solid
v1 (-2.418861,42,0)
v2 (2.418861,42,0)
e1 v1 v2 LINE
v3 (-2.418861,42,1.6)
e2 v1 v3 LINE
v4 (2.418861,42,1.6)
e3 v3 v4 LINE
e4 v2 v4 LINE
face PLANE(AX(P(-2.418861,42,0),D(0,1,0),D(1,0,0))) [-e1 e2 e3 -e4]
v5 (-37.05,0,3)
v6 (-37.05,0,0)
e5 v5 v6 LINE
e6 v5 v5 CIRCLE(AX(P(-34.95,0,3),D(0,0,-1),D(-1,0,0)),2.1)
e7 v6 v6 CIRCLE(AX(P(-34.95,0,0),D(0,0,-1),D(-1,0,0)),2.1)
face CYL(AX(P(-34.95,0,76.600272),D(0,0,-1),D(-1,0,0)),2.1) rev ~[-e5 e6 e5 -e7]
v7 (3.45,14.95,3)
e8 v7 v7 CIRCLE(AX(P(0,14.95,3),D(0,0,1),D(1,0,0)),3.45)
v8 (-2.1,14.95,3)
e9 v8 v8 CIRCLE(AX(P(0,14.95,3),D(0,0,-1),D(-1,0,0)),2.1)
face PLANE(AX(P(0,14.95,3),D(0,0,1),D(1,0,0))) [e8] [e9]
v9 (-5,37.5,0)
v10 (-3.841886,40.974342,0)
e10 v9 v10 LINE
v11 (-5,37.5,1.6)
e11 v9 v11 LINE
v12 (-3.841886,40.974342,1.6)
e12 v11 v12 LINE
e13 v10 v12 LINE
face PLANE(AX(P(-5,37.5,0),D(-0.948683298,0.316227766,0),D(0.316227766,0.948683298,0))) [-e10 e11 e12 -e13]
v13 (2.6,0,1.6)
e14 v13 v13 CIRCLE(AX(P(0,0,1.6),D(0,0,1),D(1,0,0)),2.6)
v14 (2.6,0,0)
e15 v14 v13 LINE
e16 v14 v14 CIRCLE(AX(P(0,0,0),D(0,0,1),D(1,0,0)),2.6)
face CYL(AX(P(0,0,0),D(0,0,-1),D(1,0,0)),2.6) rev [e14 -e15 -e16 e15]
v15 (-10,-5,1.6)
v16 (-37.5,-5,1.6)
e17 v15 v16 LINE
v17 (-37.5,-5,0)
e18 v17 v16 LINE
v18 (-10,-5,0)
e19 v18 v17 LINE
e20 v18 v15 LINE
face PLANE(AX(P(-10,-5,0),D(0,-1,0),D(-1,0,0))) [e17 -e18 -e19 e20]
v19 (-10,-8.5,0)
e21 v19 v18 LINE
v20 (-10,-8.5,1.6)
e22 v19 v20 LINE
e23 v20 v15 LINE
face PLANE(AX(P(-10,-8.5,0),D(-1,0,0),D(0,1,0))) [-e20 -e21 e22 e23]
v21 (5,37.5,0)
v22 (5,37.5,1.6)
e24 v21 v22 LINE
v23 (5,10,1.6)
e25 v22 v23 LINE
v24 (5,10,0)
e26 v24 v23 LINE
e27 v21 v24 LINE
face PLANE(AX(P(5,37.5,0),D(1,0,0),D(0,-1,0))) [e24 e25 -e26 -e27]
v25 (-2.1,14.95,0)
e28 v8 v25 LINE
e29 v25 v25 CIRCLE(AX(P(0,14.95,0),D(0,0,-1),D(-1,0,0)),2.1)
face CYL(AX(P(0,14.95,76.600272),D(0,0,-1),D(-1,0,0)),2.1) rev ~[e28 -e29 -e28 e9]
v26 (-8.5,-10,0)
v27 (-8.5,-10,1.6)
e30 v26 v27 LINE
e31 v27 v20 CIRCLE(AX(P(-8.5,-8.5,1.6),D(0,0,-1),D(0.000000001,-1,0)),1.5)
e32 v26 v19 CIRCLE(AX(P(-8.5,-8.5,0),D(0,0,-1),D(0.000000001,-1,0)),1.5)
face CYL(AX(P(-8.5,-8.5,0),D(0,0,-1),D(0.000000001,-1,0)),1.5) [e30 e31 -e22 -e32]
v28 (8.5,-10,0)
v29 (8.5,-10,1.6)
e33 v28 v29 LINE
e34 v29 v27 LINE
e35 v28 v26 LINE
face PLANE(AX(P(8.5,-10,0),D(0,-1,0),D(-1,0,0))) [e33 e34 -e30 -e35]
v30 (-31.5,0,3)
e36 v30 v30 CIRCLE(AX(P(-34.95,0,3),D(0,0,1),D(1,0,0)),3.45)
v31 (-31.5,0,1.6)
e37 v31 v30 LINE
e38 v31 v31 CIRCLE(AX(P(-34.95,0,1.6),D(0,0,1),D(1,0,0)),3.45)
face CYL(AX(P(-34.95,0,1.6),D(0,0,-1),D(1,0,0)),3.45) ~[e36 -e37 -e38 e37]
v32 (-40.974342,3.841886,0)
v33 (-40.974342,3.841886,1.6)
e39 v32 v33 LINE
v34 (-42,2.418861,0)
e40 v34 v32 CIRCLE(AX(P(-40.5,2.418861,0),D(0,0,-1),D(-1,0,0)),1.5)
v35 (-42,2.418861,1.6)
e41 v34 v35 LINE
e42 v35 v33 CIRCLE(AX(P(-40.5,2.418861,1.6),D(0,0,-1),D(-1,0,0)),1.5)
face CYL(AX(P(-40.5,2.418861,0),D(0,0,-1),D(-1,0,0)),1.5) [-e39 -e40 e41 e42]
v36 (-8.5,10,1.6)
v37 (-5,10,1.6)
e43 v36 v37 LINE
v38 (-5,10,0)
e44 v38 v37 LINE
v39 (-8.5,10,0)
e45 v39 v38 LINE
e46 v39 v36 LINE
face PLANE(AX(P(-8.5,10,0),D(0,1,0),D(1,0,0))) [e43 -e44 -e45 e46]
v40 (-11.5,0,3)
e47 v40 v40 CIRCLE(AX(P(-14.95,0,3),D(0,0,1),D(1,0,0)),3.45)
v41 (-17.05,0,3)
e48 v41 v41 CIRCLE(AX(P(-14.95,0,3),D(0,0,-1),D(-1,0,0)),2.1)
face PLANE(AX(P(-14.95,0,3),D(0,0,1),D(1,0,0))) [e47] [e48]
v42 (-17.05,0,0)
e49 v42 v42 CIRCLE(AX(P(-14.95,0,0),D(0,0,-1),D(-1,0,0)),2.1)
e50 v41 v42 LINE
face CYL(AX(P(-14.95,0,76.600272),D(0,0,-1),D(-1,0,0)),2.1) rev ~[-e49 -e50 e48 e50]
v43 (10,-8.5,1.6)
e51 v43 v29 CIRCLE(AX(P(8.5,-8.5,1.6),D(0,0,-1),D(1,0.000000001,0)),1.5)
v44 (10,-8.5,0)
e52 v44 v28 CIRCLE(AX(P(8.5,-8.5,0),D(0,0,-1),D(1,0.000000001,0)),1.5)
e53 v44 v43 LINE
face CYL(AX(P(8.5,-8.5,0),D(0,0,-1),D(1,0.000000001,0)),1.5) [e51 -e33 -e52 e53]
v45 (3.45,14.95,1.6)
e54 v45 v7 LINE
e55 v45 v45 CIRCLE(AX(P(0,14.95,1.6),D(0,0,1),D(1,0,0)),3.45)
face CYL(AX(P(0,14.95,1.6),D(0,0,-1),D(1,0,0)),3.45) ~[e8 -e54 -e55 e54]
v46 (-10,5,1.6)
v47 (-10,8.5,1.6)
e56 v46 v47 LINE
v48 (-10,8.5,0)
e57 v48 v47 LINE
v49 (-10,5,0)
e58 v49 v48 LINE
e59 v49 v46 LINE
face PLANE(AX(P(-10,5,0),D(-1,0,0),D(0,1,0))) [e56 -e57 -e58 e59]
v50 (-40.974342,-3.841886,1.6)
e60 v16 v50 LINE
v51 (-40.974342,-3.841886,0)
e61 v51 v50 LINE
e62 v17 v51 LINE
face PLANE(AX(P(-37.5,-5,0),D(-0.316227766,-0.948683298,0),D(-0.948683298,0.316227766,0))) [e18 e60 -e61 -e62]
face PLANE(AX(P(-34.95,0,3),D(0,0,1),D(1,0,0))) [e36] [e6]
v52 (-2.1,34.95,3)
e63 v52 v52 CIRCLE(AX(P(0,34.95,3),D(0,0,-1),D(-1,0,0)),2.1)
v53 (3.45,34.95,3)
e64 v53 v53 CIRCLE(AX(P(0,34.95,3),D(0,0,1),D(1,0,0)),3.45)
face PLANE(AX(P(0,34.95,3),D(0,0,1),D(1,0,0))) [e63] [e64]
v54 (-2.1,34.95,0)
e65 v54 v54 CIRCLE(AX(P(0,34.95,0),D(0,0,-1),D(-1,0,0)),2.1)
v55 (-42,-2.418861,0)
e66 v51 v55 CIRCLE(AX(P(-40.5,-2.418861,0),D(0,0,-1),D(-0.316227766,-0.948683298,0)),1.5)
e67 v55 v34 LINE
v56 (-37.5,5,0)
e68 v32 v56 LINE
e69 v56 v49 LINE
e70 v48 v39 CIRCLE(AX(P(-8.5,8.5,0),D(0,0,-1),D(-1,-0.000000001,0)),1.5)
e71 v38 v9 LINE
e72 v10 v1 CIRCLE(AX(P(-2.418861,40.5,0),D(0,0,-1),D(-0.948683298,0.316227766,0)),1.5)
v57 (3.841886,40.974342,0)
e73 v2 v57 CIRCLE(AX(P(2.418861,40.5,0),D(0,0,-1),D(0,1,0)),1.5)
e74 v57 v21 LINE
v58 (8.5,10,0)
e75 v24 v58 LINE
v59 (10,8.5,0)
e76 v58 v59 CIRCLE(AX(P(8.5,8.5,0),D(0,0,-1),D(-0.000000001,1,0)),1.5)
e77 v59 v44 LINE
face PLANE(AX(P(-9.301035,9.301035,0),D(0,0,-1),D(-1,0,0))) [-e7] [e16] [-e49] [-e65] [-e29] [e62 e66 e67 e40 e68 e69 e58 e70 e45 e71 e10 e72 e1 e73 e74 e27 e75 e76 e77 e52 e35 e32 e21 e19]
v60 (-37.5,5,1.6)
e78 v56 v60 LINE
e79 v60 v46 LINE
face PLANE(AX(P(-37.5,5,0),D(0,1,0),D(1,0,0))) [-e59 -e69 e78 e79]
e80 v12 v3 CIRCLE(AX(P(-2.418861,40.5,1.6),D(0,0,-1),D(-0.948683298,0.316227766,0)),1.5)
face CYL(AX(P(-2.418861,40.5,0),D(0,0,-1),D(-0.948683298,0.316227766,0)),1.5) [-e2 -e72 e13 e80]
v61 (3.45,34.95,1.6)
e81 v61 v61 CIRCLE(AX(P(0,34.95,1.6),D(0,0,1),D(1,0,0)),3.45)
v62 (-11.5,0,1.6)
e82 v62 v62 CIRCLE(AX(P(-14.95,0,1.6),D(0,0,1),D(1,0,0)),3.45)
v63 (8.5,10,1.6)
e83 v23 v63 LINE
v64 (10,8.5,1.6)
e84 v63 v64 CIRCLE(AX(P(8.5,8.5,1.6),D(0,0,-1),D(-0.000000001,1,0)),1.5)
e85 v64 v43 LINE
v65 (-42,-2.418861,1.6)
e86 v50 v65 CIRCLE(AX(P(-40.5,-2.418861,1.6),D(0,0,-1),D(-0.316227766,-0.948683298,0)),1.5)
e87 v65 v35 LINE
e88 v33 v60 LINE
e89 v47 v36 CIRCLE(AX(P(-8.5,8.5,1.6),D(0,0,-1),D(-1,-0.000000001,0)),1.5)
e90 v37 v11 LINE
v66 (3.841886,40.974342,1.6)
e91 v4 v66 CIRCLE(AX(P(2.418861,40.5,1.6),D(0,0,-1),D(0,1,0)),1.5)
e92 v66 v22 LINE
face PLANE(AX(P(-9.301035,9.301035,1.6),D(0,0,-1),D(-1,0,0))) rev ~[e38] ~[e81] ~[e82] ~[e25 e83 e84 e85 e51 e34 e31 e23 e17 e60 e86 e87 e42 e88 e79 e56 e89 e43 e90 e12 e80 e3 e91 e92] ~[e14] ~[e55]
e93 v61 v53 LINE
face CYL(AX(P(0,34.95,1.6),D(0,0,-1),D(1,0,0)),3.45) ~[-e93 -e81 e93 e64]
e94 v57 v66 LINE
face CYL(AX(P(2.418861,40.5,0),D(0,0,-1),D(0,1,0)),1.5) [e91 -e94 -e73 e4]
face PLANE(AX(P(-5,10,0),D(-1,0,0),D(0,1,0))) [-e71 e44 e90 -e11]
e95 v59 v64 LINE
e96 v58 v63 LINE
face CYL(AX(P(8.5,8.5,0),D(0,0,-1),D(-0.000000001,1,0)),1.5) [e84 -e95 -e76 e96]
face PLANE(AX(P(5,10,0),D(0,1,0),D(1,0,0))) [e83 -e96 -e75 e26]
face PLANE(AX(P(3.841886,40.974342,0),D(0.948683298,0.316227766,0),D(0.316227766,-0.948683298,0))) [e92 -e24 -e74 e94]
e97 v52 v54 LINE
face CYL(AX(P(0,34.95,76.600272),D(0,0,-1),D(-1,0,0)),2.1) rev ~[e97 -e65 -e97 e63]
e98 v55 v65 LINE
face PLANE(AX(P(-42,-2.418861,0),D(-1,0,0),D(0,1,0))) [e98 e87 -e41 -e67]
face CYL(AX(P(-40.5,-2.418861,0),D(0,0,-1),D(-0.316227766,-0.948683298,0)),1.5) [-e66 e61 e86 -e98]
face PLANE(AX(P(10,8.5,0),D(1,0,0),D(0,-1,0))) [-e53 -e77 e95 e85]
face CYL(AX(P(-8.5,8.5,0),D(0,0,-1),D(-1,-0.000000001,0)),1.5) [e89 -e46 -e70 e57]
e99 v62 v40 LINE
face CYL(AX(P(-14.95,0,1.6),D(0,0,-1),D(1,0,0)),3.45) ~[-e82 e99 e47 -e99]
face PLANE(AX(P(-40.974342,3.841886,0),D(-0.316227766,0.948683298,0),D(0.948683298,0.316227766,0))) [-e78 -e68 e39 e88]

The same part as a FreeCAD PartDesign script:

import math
import FreeCAD as App
import Part
import Sketcher

doc = App.newDocument("Part")
body = doc.addObject("PartDesign::Body", "Body")

# Sketch on XY plane
sketch1 = body.newObject("Sketcher::SketchObject", "Sketch")
sketch1.AttachmentSupport = (doc.getObject("XY_Plane"), [""])
sketch1.MapMode = "FlatFace"
sketch1.addGeometry([
    Part.LineSegment(App.Vector(-10, -5, 0), App.Vector(-10, -8.5, 0)),  # 0
    Part.ArcOfCircle(Part.Circle(App.Vector(-8.5, -8.5, 0), App.Vector(0, 0, 1), 1.5), math.radians(180), math.radians(270)),  # 1
    Part.LineSegment(App.Vector(-8.5, -10, 0), App.Vector(8.5, -10, 0)),  # 2
    Part.ArcOfCircle(Part.Circle(App.Vector(8.5, -8.5, 0), App.Vector(0, 0, 1), 1.5), math.radians(-90), math.radians(0)),  # 3
    Part.LineSegment(App.Vector(10, -8.5, 0), App.Vector(10, 8.5, 0)),  # 4
    Part.ArcOfCircle(Part.Circle(App.Vector(8.5, 8.5, 0), App.Vector(0, 0, 1), 1.5), math.radians(0), math.radians(90)),  # 5
    Part.LineSegment(App.Vector(8.5, 10, 0), App.Vector(5, 10, 0)),  # 6
    Part.LineSegment(App.Vector(5, 10, 0), App.Vector(5, 37.5, 0)),  # 7
    Part.LineSegment(App.Vector(5, 37.5, 0), App.Vector(3.8, 41, 0)),  # 8
    Part.ArcOfCircle(Part.Circle(App.Vector(2.4, 40.5, 0), App.Vector(0, 0, 1), 1.5), math.radians(18), math.radians(90)),  # 9
    Part.LineSegment(App.Vector(2.4, 42, 0), App.Vector(-2.4, 42, 0)),  # 10
    Part.ArcOfCircle(Part.Circle(App.Vector(-2.4, 40.5, 0), App.Vector(0, 0, 1), 1.5), math.radians(90), math.radians(162)),  # 11
    Part.LineSegment(App.Vector(-3.8, 41, 0), App.Vector(-5, 37.5, 0)),  # 12
    Part.LineSegment(App.Vector(-5, 37.5, 0), App.Vector(-5, 10, 0)),  # 13
    Part.LineSegment(App.Vector(-5, 10, 0), App.Vector(-8.5, 10, 0)),  # 14
    Part.ArcOfCircle(Part.Circle(App.Vector(-8.5, 8.5, 0), App.Vector(0, 0, 1), 1.5), math.radians(90), math.radians(180)),  # 15
    Part.LineSegment(App.Vector(-10, 8.5, 0), App.Vector(-10, 5, 0)),  # 16
    Part.LineSegment(App.Vector(-10, 5, 0), App.Vector(-37.5, 5, 0)),  # 17
    Part.LineSegment(App.Vector(-37.5, 5, 0), App.Vector(-41, 3.8, 0)),  # 18
    Part.ArcOfCircle(Part.Circle(App.Vector(-40.5, 2.4, 0), App.Vector(0, 0, 1), 1.5), math.radians(108), math.radians(180)),  # 19
    Part.LineSegment(App.Vector(-42, 2.4, 0), App.Vector(-42, -2.4, 0)),  # 20
    Part.ArcOfCircle(Part.Circle(App.Vector(-40.5, -2.4, 0), App.Vector(0, 0, 1), 1.5), math.radians(180), math.radians(252)),  # 21
    Part.LineSegment(App.Vector(-41, -3.8, 0), App.Vector(-37.5, -5, 0)),  # 22
    Part.LineSegment(App.Vector(-37.5, -5, 0), App.Vector(-10, -5, 0)),  # 23
    Part.Circle(App.Vector(0, 0, 0), App.Vector(0, 0, 1), 2.6),  # 24
], False)
sketch1.addConstraint([
    Sketcher.Constraint("Tangent", 0, 2, 1, 1),
    Sketcher.Constraint("Tangent", 1, 2, 2, 1),
    Sketcher.Constraint("Tangent", 2, 2, 3, 1),
    Sketcher.Constraint("Tangent", 3, 2, 4, 1),
    Sketcher.Constraint("Tangent", 4, 2, 5, 1),
    Sketcher.Constraint("Tangent", 5, 2, 6, 1),
    Sketcher.Constraint("Coincident", 6, 2, 7, 1),
    Sketcher.Constraint("Coincident", 7, 2, 8, 1),
    Sketcher.Constraint("Tangent", 8, 2, 9, 1),
    Sketcher.Constraint("Tangent", 9, 2, 10, 1),
    Sketcher.Constraint("Tangent", 10, 2, 11, 1),
    Sketcher.Constraint("Tangent", 11, 2, 12, 1),
    Sketcher.Constraint("Coincident", 12, 2, 13, 1),
    Sketcher.Constraint("Coincident", 13, 2, 14, 1),
    Sketcher.Constraint("Tangent", 14, 2, 15, 1),
    Sketcher.Constraint("Tangent", 15, 2, 16, 1),
    Sketcher.Constraint("Coincident", 16, 2, 17, 1),
    Sketcher.Constraint("Coincident", 17, 2, 18, 1),
    Sketcher.Constraint("Tangent", 18, 2, 19, 1),
    Sketcher.Constraint("Tangent", 19, 2, 20, 1),
    Sketcher.Constraint("Tangent", 20, 2, 21, 1),
    Sketcher.Constraint("Tangent", 21, 2, 22, 1),
    Sketcher.Constraint("Coincident", 22, 2, 23, 1),
    Sketcher.Constraint("Coincident", 23, 2, 0, 1),
    Sketcher.Constraint("Vertical", 0),
    Sketcher.Constraint("Horizontal", 2),
    Sketcher.Constraint("Vertical", 4),
    Sketcher.Constraint("Horizontal", 6),
    Sketcher.Constraint("Vertical", 7),
    Sketcher.Constraint("Horizontal", 10),
    Sketcher.Constraint("Vertical", 13),
    Sketcher.Constraint("Horizontal", 14),
    Sketcher.Constraint("Vertical", 16),
    Sketcher.Constraint("Horizontal", 17),
    Sketcher.Constraint("Vertical", 20),
    Sketcher.Constraint("Horizontal", 23),
    Sketcher.Constraint("Coincident", 24, 3, -1, 1),
    Sketcher.Constraint("Equal", 1, 3),
    Sketcher.Constraint("Equal", 3, 5),
    Sketcher.Constraint("Equal", 5, 9),
    Sketcher.Constraint("Equal", 9, 11),
    Sketcher.Constraint("Equal", 11, 15),
    Sketcher.Constraint("Equal", 15, 19),
    Sketcher.Constraint("Equal", 19, 21),
    Sketcher.Constraint("Symmetric", 1, 3, 5, 3, -1, 1),
    Sketcher.Constraint("Symmetric", 3, 3, 15, 3, -1, 1),
    Sketcher.Constraint("Symmetric", 8, 2, 11, 2, -2),
    Sketcher.Constraint("Symmetric", 18, 2, 21, 2, -1),
    Sketcher.Constraint("Perpendicular", 8, 18),
    Sketcher.Constraint("Horizontal", 7, 2, 12, 2),
    Sketcher.Constraint("Vertical", 17, 2, 22, 2),
    Sketcher.Constraint("Equal", 14, 0),
    Sketcher.Constraint("Equal", 2, 4),
    Sketcher.Constraint("Equal", 23, 7),
    Sketcher.Constraint("Equal", 10, 20),
    Sketcher.Constraint("Diameter", 24, 5.2),
    Sketcher.Constraint("Radius", 1, 1.5),
    Sketcher.Constraint("DistanceX", 2, 1, 2, 2, 17.0),
    Sketcher.Constraint("DistanceX", 6, 2, 6, 1, 3.5),
    Sketcher.Constraint("DistanceX", 17, 2, 17, 1, 27.5),
    Sketcher.Constraint("DistanceY", -1, 1, 9, 2, 42.0),
    Sketcher.Constraint("DistanceX", 10, 2, 10, 1, 4.837722),
])
pad1 = body.newObject("PartDesign::Pad", "Pad")
pad1.Profile = sketch1
pad1.Length = 1.6

# Sketch on XY plane
sketch2 = body.newObject("Sketcher::SketchObject", "Sketch001")
sketch2.AttachmentSupport = (doc.getObject("XY_Plane"), [""])
sketch2.MapMode = "FlatFace"
sketch2.AttachmentOffset = App.Placement(App.Vector(0, 0, 1.6), App.Rotation())
sketch2.addGeometry([
    Part.Circle(App.Vector(0, 14.9, 0), App.Vector(0, 0, 1), 3.5),
    Part.Circle(App.Vector(0, 35, 0), App.Vector(0, 0, 1), 3.5),
    Part.Circle(App.Vector(-14.9, 0, 0), App.Vector(0, 0, 1), 3.5),
    Part.Circle(App.Vector(-35, 0, 0), App.Vector(0, 0, 1), 3.5),
], False)
sketch2.addConstraint([
    Sketcher.Constraint("Equal", 0, 1),
    Sketcher.Constraint("Equal", 1, 2),
    Sketcher.Constraint("Equal", 2, 3),
    Sketcher.Constraint("PointOnObject", 0, 3, -2),
    Sketcher.Constraint("PointOnObject", 1, 3, -2),
    Sketcher.Constraint("PointOnObject", 2, 3, -1),
    Sketcher.Constraint("PointOnObject", 3, 3, -1),
    Sketcher.Constraint("Diameter", 0, 6.9),
    Sketcher.Constraint("DistanceY", 0, 3, 1, 3, 20.0),
    Sketcher.Constraint("DistanceX", 3, 3, 2, 3, 20.0),
    Sketcher.Constraint("DistanceY", -1, 1, 0, 3, 14.95),
    Sketcher.Constraint("DistanceX", 2, 3, -1, 1, 14.95),
])
pad2 = body.newObject("PartDesign::Pad", "Pad001")
pad2.Profile = sketch2
pad2.Length = 1.4

# Sketch on XY plane
sketch3 = body.newObject("Sketcher::SketchObject", "Sketch002")
sketch3.AttachmentSupport = (doc.getObject("XY_Plane"), [""])
sketch3.MapMode = "FlatFace"
sketch3.AttachmentOffset = App.Placement(App.Vector(0, 0, 3), App.Rotation())
sketch3.addGeometry([
    Part.Circle(App.Vector(0, 35, 0), App.Vector(0, 0, 1), 2.1),
    Part.Circle(App.Vector(0, 14.9, 0), App.Vector(0, 0, 1), 2.1),
    Part.Circle(App.Vector(-14.9, 0, 0), App.Vector(0, 0, 1), 2.1),
    Part.Circle(App.Vector(-35, 0, 0), App.Vector(0, 0, 1), 2.1),
], False)
sketch3.addConstraint([
    Sketcher.Constraint("Equal", 0, 1),
    Sketcher.Constraint("Equal", 1, 2),
    Sketcher.Constraint("Equal", 2, 3),
    Sketcher.Constraint("PointOnObject", 0, 3, -2),
    Sketcher.Constraint("PointOnObject", 1, 3, -2),
    Sketcher.Constraint("PointOnObject", 2, 3, -1),
    Sketcher.Constraint("PointOnObject", 3, 3, -1),
    Sketcher.Constraint("Diameter", 0, 4.2),
    Sketcher.Constraint("DistanceY", 1, 3, 0, 3, 20.0),
    Sketcher.Constraint("DistanceX", 3, 3, 2, 3, 20.0),
    Sketcher.Constraint("DistanceY", -1, 1, 0, 3, 34.95),
    Sketcher.Constraint("DistanceX", 2, 3, -1, 1, 14.95),
])
doc.recompute()
hole = body.newObject("PartDesign::Hole", "Hole")
hole.Profile = sketch3
hole.ThreadType = "None"
hole.Diameter = 4.2
hole.DepthType = "ThroughAll"

doc.recompute()
